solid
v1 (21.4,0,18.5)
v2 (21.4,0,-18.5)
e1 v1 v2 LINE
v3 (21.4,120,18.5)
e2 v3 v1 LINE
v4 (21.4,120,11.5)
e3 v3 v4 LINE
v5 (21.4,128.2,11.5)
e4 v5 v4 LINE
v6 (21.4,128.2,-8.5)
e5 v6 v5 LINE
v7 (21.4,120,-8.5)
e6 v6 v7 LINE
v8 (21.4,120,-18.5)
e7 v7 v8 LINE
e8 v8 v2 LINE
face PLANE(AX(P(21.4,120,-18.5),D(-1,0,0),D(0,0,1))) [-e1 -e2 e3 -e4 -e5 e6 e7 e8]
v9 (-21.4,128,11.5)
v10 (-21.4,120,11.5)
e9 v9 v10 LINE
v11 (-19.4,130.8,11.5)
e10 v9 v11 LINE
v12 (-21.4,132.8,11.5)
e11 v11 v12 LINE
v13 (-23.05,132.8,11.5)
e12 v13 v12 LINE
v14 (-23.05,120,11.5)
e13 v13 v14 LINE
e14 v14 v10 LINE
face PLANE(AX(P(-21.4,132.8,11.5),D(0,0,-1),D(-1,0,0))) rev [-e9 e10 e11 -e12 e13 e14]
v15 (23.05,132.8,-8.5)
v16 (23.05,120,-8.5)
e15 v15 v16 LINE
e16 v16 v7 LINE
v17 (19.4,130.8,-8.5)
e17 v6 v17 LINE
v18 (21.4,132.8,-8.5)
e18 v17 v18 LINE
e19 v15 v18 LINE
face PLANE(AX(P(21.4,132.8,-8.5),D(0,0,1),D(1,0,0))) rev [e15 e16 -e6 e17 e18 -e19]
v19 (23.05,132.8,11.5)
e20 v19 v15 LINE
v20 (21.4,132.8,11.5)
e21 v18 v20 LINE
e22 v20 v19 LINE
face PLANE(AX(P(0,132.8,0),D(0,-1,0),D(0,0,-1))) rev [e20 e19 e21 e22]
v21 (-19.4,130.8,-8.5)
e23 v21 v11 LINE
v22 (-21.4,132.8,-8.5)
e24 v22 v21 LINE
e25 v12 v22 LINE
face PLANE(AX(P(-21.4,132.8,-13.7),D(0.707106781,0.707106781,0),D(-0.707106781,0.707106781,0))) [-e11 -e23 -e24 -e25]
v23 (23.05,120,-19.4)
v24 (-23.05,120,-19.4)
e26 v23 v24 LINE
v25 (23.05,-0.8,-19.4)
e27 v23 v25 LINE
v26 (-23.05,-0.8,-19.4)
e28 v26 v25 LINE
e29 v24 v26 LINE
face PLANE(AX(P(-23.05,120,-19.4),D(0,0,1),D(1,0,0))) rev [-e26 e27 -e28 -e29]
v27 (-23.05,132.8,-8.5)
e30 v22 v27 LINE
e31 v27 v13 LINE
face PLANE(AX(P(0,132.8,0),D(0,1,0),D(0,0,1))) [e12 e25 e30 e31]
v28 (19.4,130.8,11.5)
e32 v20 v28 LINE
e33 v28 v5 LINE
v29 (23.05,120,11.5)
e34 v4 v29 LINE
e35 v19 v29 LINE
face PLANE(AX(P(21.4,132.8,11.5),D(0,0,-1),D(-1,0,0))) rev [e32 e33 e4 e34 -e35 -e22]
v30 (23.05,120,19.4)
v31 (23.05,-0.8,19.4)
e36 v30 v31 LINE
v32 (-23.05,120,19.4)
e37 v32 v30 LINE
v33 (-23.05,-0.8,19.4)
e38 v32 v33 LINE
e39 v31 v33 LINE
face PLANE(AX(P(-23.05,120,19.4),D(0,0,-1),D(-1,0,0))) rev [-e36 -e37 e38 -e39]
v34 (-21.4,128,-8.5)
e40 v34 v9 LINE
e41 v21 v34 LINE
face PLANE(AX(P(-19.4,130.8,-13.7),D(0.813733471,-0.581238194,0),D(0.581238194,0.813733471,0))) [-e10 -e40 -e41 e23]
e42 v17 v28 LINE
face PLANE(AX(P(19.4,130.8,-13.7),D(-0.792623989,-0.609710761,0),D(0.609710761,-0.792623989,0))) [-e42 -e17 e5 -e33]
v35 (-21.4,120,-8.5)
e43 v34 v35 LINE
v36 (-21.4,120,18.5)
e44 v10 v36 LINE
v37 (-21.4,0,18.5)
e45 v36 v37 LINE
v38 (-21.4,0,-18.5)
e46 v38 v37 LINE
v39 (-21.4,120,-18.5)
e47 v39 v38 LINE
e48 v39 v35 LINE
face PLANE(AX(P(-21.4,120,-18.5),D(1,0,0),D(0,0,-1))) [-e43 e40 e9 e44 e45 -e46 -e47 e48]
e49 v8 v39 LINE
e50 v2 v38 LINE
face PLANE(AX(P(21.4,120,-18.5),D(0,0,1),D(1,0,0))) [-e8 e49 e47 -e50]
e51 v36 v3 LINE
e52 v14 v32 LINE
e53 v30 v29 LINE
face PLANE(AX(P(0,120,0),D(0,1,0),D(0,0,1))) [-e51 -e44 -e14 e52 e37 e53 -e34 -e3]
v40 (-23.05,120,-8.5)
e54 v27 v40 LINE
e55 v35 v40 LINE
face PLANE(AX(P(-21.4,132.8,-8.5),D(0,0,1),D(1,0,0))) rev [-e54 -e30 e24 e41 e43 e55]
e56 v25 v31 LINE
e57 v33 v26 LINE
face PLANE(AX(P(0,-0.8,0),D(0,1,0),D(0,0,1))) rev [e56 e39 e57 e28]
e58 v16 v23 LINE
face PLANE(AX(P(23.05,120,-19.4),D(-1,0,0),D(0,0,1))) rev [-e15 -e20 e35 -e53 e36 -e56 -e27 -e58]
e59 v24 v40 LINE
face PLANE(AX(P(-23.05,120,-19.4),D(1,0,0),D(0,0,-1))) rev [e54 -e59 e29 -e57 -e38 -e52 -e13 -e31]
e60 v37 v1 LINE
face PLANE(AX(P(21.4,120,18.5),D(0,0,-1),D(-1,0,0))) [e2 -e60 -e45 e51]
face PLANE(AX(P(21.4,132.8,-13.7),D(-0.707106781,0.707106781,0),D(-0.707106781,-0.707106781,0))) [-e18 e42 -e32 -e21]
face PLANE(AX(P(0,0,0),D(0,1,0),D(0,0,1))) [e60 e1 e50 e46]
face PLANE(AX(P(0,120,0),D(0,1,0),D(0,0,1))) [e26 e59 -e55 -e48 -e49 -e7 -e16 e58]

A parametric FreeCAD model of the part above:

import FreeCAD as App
import Part
import Sketcher

V = App.Vector
Q = App.Units.Quantity

doc = App.newDocument("Part")
body = doc.addObject("PartDesign::Body", "Body")

# Sketch on XZ plane
sketch1 = body.newObject("Sketcher::SketchObject", "Sketch")
sketch1.AttachmentSupport = (doc.getObject("XZ_Plane"), [""])
sketch1.MapMode = "FlatFace"
sketch1.addGeometry([
    Part.LineSegment(V(-23, -19, 0), V(-23, 19, 0)),  # 0
    Part.LineSegment(V(-23, 19, 0), V(23, 19, 0)),  # 1
    Part.LineSegment(V(23, 19, 0), V(23, -19, 0)),  # 2
    Part.LineSegment(V(23, -19, 0), V(-23, -19, 0)),  # 3
    Part.LineSegment(V(21, 18, 0), V(-21, 18, 0)),  # 4
    Part.LineSegment(V(-21, 18, 0), V(-21, -18, 0)),  # 5
    Part.LineSegment(V(-21, -18, 0), V(21, -18, 0)),  # 6
    Part.LineSegment(V(21, -18, 0), V(21, 18, 0)),  # 7
], False)
sketch1.addConstraint([
    Sketcher.Constraint("Coincident", 0, 2, 1, 1),
    Sketcher.Constraint("Coincident", 1, 2, 2, 1),
    Sketcher.Constraint("Coincident", 2, 2, 3, 1),
    Sketcher.Constraint("Coincident", 3, 2, 0, 1),
    Sketcher.Constraint("Coincident", 4, 2, 5, 1),
    Sketcher.Constraint("Coincident", 5, 2, 6, 1),
    Sketcher.Constraint("Coincident", 6, 2, 7, 1),
    Sketcher.Constraint("Coincident", 7, 2, 4, 1),
    Sketcher.Constraint("Vertical", 0),
    Sketcher.Constraint("Horizontal", 1),
    Sketcher.Constraint("Vertical", 2),
    Sketcher.Constraint("Horizontal", 3),
    Sketcher.Constraint("Horizontal", 4),
    Sketcher.Constraint("Vertical", 5),
    Sketcher.Constraint("Horizontal", 6),
    Sketcher.Constraint("Vertical", 7),
    Sketcher.Constraint("Symmetric", 0, 2, 2, 2, -1, 1),
    Sketcher.Constraint("Symmetric", 4, 2, 6, 2, -1, 1),
    Sketcher.Constraint("DistanceY", 5, 2, 5, 1, Q("37 mm")),
    Sketcher.Constraint("DistanceX", 1, 1, 1, 2, Q("46.1 mm")),
    Sketcher.Constraint("DistanceX", 4, 2, 4, 1, Q("42.8 mm")),
    Sketcher.Constraint("DistanceY", 0, 1, 0, 2, Q("38.8 mm")),
])
pad1 = body.newObject("PartDesign::Pad", "Pad")
pad1.Profile = sketch1
pad1.Length = 120
pad1.Reversed = True

# Sketch on XZ plane
sketch2 = body.newObject("Sketcher::SketchObject", "Sketch001")
sketch2.AttachmentSupport = (doc.getObject("XZ_Plane"), [""])
sketch2.MapMode = "FlatFace"
sketch2.AttachmentOffset = App.Placement(V(0, 0, -120), App.Rotation())
sketch2.addGeometry([
    Part.LineSegment(V(21.4, -8.5, 0), V(21.4, 11.5, 0)),  # 0
    Part.LineSegment(V(21.4, 11.5, 0), V(23.1, 11.5, 0)),  # 1
    Part.LineSegment(V(23.1, 11.5, 0), V(23.1, -8.5, 0)),  # 2
    Part.LineSegment(V(23.1, -8.5, 0), V(21.4, -8.5, 0)),  # 3
    Part.LineSegment(V(-23.1, -8.5, 0), V(-23.1, 11.5, 0)),  # 4
    Part.LineSegment(V(-23.1, 11.5, 0), V(-21.4, 11.5, 0)),  # 5
    Part.LineSegment(V(-21.4, 11.5, 0), V(-21.4, -8.5, 0)),  # 6
    Part.LineSegment(V(-21.4, -8.5, 0), V(-23.1, -8.5, 0)),  # 7
], False)
sketch2.addConstraint([
    Sketcher.Constraint("Coincident", 0, 2, 1, 1),
    Sketcher.Constraint("Coincident", 1, 2, 2, 1),
    Sketcher.Constraint("Coincident", 2, 2, 3, 1),
    Sketcher.Constraint("Coincident", 3, 2, 0, 1),
    Sketcher.Constraint("Coincident", 4, 2, 5, 1),
    Sketcher.Constraint("Coincident", 5, 2, 6, 1),
    Sketcher.Constraint("Coincident", 6, 2, 7, 1),
    Sketcher.Constraint("Coincident", 7, 2, 4, 1),
    Sketcher.Constraint("Vertical", 0),
    Sketcher.Constraint("Horizontal", 1),
    Sketcher.Constraint("Vertical", 2),
    Sketcher.Constraint("Horizontal", 3),
    Sketcher.Constraint("Vertical", 4),
    Sketcher.Constraint("Horizontal", 5),
    Sketcher.Constraint("Vertical", 6),
    Sketcher.Constraint("Horizontal", 7),
    Sketcher.Constraint("Symmetric", 1, 2, 4, 2, -2),
    Sketcher.Constraint("Symmetric", 3, 2, 6, 2, -2),
    Sketcher.Constraint("DistanceY", 0, 1, 0, 2, Q("20 mm")),
    Sketcher.Constraint("DistanceX", 1, 1, 1, 2, Q("1.65 mm")),
    Sketcher.Constraint("DistanceX", -1, 1, 0, 2, Q("21.4 mm")),
    Sketcher.Constraint("DistanceY", -1, 1, 0, 2, Q("11.5 mm")),
])
pad2 = body.newObject("PartDesign::Pad", "Pad001")
pad2.Profile = sketch2
pad2.Length = 12.8
pad2.Reversed = True

# Sketch on XY plane
sketch3 = body.newObject("Sketcher::SketchObject", "Sketch002")
sketch3.AttachmentSupport = (doc.getObject("XY_Plane"), [""])
sketch3.MapMode = "FlatFace"
sketch3.AttachmentOffset = App.Placement(V(0, 0, 11.5), App.Rotation())
sketch3.addGeometry([
    Part.LineSegment(V(-21.4, 128, 0), V(-19.4, 130.8, 0)),  # 0
    Part.LineSegment(V(-19.4, 130.8, 0), V(-21.4, 132.8, 0)),  # 1
    Part.LineSegment(V(-21.4, 132.8, 0), V(-21.4, 128, 0)),  # 2
    Part.LineSegment(V(21.4, 128.2, 0), V(21.4, 132.8, 0)),  # 3
    Part.LineSegment(V(21.4, 132.8, 0), V(19.4, 130.8, 0)),  # 4
    Part.LineSegment(V(19.4, 130.8, 0), V(21.4, 128.2, 0)),  # 5
], False)
sketch3.addConstraint([
    Sketcher.Constraint("Coincident", 0, 2, 1, 1),
    Sketcher.Constraint("Coincident", 1, 2, 2, 1),
    Sketcher.Constraint("Coincident", 2, 2, 0, 1),
    Sketcher.Constraint("Coincident", 3, 2, 4, 1),
    Sketcher.Constraint("Coincident", 4, 2, 5, 1),
    Sketcher.Constraint("Coincident", 5, 2, 3, 1),
    Sketcher.Constraint("Vertical", 2),
    Sketcher.Constraint("Vertical", 3),
    Sketcher.Constraint("Symmetric", 1, 2, 3, 2, -2),
    Sketcher.Constraint("Symmetric", 0, 2, 4, 2, -2),
    Sketcher.Constraint("Perpendicular", 1, 4),
    Sketcher.Constraint("DistanceY", 2, 2, 2, 1, Q("4.8 mm")),
    Sketcher.Constraint("DistanceY", 3, 1, 3, 2, Q("4.6 mm")),
    Sketcher.Constraint("DistanceY", -1, 1, 2, 2, Q("128 mm")),
    Sketcher.Constraint("DistanceX", 1, 2, 0, 2, Q("2 mm")),
    Sketcher.Constraint("DistanceX", 0, 2, -1, 1, Q("19.4 mm")),
])
pad3 = body.newObject("PartDesign::Pad", "Pad002")
pad3.Profile = sketch3
pad3.Length = 20
pad3.Reversed = True

# Sketch on XZ plane
sketch4 = body.newObject("Sketcher::SketchObject", "Sketch003")
sketch4.AttachmentSupport = (doc.getObject("XZ_Plane"), [""])
sketch4.MapMode = "FlatFace"
sketch4.addGeometry([
    Part.LineSegment(V(-23, 19, 0), V(-23, -19, 0)),
    Part.LineSegment(V(-23, -19, 0), V(23, -19, 0)),
    Part.LineSegment(V(23, -19, 0), V(23, 19, 0)),
    Part.LineSegment(V(23, 19, 0), V(-23, 19, 0)),
], False)
sketch4.addConstraint([
    Sketcher.Constraint("Coincident", 0, 2, 1, 1),
    Sketcher.Constraint("Coincident", 1, 2, 2, 1),
    Sketcher.Constraint("Coincident", 2, 2, 3, 1),
    Sketcher.Constraint("Coincident", 3, 2, 0, 1),
    Sketcher.Constraint("Vertical", 0),
    Sketcher.Constraint("Horizontal", 1),
    Sketcher.Constraint("Vertical", 2),
    Sketcher.Constraint("Horizontal", 3),
    Sketcher.Constraint("Symmetric", 0, 2, 2, 2, -1, 1),
    Sketcher.Constraint("DistanceX", 1, 1, 1, 2, Q("46.1 mm")),
    Sketcher.Constraint("DistanceY", 0, 2, 0, 1, Q("38.8 mm")),
])
pad4 = body.newObject("PartDesign::Pad", "Pad003")
pad4.Profile = sketch4
pad4.Length = 0.8

doc.recompute()
